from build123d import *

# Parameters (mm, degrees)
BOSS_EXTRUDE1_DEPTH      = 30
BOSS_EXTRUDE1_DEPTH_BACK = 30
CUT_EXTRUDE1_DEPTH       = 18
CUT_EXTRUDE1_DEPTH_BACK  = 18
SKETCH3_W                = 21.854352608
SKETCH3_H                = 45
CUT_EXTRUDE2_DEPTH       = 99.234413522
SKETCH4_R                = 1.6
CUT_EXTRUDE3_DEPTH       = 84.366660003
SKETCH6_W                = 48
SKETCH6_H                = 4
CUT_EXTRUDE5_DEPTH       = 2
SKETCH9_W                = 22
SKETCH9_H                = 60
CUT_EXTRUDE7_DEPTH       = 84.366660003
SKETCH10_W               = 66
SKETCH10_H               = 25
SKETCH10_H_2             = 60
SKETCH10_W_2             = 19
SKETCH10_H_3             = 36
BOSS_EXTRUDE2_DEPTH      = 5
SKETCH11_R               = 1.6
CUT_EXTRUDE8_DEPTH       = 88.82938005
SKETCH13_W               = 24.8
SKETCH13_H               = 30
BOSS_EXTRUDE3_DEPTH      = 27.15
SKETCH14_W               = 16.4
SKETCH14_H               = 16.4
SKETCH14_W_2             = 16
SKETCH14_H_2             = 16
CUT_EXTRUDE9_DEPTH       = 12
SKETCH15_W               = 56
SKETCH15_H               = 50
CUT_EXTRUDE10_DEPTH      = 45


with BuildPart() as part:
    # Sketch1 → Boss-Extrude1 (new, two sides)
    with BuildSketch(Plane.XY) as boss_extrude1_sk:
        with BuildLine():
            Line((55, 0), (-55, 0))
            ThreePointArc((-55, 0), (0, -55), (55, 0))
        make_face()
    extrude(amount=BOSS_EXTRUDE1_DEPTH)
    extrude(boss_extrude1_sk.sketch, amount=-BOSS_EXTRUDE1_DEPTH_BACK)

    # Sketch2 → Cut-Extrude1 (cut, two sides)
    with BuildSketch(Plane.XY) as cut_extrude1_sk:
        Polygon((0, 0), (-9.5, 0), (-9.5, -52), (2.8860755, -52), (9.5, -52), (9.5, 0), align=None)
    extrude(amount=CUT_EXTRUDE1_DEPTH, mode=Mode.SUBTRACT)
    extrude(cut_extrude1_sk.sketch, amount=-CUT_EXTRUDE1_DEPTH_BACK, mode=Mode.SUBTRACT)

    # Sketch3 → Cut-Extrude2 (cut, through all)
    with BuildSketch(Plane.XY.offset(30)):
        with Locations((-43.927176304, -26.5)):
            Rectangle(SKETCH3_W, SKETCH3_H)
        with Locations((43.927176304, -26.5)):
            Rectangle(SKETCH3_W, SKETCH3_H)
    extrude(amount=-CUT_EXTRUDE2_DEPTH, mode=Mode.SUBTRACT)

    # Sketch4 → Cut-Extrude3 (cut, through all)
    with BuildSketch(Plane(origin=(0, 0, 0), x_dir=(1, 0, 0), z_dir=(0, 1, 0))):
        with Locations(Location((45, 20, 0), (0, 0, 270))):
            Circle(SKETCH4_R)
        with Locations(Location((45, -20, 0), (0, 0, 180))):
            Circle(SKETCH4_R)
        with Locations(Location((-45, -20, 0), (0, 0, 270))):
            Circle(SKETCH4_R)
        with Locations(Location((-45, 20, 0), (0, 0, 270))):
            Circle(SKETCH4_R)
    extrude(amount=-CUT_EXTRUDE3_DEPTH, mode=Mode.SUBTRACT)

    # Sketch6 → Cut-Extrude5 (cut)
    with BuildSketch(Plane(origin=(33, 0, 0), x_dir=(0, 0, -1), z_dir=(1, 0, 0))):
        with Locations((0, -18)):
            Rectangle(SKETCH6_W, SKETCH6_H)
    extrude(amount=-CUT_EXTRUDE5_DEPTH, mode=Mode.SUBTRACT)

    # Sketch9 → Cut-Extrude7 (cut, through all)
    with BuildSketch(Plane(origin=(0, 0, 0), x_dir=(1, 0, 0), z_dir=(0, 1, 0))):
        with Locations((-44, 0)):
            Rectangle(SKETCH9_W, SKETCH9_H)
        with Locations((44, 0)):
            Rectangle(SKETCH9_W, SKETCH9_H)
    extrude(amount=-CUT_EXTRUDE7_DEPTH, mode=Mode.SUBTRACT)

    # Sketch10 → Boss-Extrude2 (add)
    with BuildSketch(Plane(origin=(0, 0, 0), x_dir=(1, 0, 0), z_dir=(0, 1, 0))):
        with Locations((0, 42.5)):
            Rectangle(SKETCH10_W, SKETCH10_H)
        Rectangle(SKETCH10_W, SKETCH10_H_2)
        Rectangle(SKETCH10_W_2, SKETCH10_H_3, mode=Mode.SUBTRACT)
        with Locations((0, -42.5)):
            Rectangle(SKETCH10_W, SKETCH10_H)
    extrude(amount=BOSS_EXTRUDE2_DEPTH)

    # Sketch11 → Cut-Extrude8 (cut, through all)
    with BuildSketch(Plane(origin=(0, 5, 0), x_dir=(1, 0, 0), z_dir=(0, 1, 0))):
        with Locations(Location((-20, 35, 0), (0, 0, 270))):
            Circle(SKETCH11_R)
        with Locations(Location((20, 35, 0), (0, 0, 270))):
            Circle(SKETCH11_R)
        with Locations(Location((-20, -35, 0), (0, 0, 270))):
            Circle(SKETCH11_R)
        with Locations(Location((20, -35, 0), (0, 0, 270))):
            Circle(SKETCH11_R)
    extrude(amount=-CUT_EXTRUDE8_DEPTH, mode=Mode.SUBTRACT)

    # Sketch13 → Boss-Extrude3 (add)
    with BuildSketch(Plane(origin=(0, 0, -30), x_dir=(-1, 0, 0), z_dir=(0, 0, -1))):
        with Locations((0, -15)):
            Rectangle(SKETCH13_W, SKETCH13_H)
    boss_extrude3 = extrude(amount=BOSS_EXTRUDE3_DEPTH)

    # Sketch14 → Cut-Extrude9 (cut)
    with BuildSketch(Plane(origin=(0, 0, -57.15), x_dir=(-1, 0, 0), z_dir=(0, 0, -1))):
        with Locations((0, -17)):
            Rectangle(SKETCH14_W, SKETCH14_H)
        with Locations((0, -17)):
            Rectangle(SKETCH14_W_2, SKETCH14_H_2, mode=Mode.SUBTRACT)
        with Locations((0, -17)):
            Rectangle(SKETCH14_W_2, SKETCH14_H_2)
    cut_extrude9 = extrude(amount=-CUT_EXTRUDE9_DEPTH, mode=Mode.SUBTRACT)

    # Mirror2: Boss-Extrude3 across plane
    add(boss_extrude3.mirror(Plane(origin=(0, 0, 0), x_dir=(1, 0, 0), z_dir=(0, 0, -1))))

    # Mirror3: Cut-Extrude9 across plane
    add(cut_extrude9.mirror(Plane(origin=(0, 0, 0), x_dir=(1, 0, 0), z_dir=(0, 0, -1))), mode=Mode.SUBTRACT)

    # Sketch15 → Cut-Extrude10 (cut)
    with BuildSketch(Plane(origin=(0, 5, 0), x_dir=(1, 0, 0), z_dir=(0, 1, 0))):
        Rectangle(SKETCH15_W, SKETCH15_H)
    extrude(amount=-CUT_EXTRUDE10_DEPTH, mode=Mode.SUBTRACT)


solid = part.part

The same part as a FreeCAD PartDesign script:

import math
import FreeCAD as App
import Part
import Sketcher
from FreeCAD import Vector

doc = App.newDocument("Part")
body = doc.addObject("PartDesign::Body", "Body")

sketch1 = doc.addObject("Sketcher::SketchObject", "Sketch")
body.addObject(sketch1)
sketch1.AttachmentSupport = (doc.XY_Plane, [""])
sketch1.MapMode = "FlatFace"
sketch1.addGeometry(Part.LineSegment(Vector(55, 0, 0), Vector(-55, 0, 0)), False)
sketch1.addGeometry(Part.ArcOfCircle(Part.Circle(Vector(0, 0, 0), Vector(0, 0, 1), 55), math.radians(180), math.radians(360)), False)
sketch1.addConstraint(Sketcher.Constraint("Coincident", 0, 1, 1, 2))
sketch1.addConstraint(Sketcher.Constraint("Coincident", 1, 1, 0, 2))
sketch1.addConstraint(Sketcher.Constraint("Horizontal", 0))
sketch1.addConstraint(Sketcher.Constraint("Coincident", 1, 3, -1, 1))
sketch1.addConstraint(Sketcher.Constraint("PointOnObject", 0, 1, -1))
sketch1.addConstraint(Sketcher.Constraint("Radius", 1, 55.0))
pad1 = doc.addObject("PartDesign::Pad", "Pad")
body.addObject(pad1)
pad1.Profile = sketch1
pad1.Type = "TwoLengths"
pad1.Length = 30
pad1.Length2 = 30

sketch2 = doc.addObject("Sketcher::SketchObject", "Sketch001")
body.addObject(sketch2)
sketch2.AttachmentSupport = (doc.XY_Plane, [""])
sketch2.MapMode = "FlatFace"
sketch2.addGeometry(Part.LineSegment(Vector(-10, 0, 0), Vector(-10, -52, 0)), False)
sketch2.addGeometry(Part.LineSegment(Vector(-10, -52, 0), Vector(10, -52, 0)), False)
sketch2.addGeometry(Part.LineSegment(Vector(10, -52, 0), Vector(10, 0, 0)), False)
sketch2.addGeometry(Part.LineSegment(Vector(10, 0, 0), Vector(-10, 0, 0)), False)
sketch2.addConstraint(Sketcher.Constraint("Coincident", 0, 2, 1, 1))
sketch2.addConstraint(Sketcher.Constraint("Coincident", 1, 2, 2, 1))
sketch2.addConstraint(Sketcher.Constraint("Coincident", 2, 2, 3, 1))
sketch2.addConstraint(Sketcher.Constraint("Coincident", 3, 2, 0, 1))
sketch2.addConstraint(Sketcher.Constraint("Vertical", 0))
sketch2.addConstraint(Sketcher.Constraint("Horizontal", 1))
sketch2.addConstraint(Sketcher.Constraint("Vertical", 2))
sketch2.addConstraint(Sketcher.Constraint("Horizontal", 3))
sketch2.addConstraint(Sketcher.Constraint("Symmetric", 2, 2, 3, 2, -1, 1))
sketch2.addConstraint(Sketcher.Constraint("DistanceX", 1, 1, 1, 2, 19.0))
sketch2.addConstraint(Sketcher.Constraint("DistanceY", 0, 2, 0, 1, 52.0))
pocket1 = doc.addObject("PartDesign::Pocket", "Pocket")
body.addObject(pocket1)
pocket1.Profile = sketch2
pocket1.Type = "TwoLengths"
pocket1.Length = 18
pocket1.Length2 = 18
pocket1.Reversed = True

sketch3 = doc.addObject("Sketcher::SketchObject", "Sketch002")
body.addObject(sketch3)
sketch3.AttachmentSupport = (doc.XY_Plane, [""])
sketch3.MapMode = "FlatFace"
sketch3.AttachmentOffset = App.Placement(Vector(0, 0, 30), App.Rotation())
sketch3.addGeometry(Part.LineSegment(Vector(-55, -4, 0), Vector(-55, -49, 0)), False)
sketch3.addGeometry(Part.LineSegment(Vector(-55, -49, 0), Vector(-33, -49, 0)), False)
sketch3.addGeometry(Part.LineSegment(Vector(-33, -49, 0), Vector(-33, -4, 0)), False)
sketch3.addGeometry(Part.LineSegment(Vector(-33, -4, 0), Vector(-55, -4, 0)), False)
sketch3.addGeometry(Part.LineSegment(Vector(33, -4, 0), Vector(33, -49, 0)), False)
sketch3.addGeometry(Part.LineSegment(Vector(33, -49, 0), Vector(55, -49, 0)), False)
sketch3.addGeometry(Part.LineSegment(Vector(55, -49, 0), Vector(55, -4, 0)), False)
sketch3.addGeometry(Part.LineSegment(Vector(55, -4, 0), Vector(33, -4, 0)), False)
sketch3.addConstraint(Sketcher.Constraint("Coincident", 0, 2, 1, 1))
sketch3.addConstraint(Sketcher.Constraint("Coincident", 1, 2, 2, 1))
sketch3.addConstraint(Sketcher.Constraint("Coincident", 2, 2, 3, 1))
sketch3.addConstraint(Sketcher.Constraint("Coincident", 3, 2, 0, 1))
sketch3.addConstraint(Sketcher.Constraint("Coincident", 4, 2, 5, 1))
sketch3.addConstraint(Sketcher.Constraint("Coincident", 5, 2, 6, 1))
sketch3.addConstraint(Sketcher.Constraint("Coincident", 6, 2, 7, 1))
sketch3.addConstraint(Sketcher.Constraint("Coincident", 7, 2, 4, 1))
sketch3.addConstraint(Sketcher.Constraint("Vertical", 0))
sketch3.addConstraint(Sketcher.Constraint("Horizontal", 1))
sketch3.addConstraint(Sketcher.Constraint("Vertical", 2))
sketch3.addConstraint(Sketcher.Constraint("Horizontal", 3))
sketch3.addConstraint(Sketcher.Constraint("Vertical", 4))
sketch3.addConstraint(Sketcher.Constraint("Horizontal", 5))
sketch3.addConstraint(Sketcher.Constraint("Vertical", 6))
sketch3.addConstraint(Sketcher.Constraint("Horizontal", 7))
sketch3.addConstraint(Sketcher.Constraint("Symmetric", 1, 2, 4, 2, -2))
sketch3.addConstraint(Sketcher.Constraint("Symmetric", 3, 2, 6, 2, -2))
sketch3.addConstraint(Sketcher.Constraint("DistanceY", 0, 2, 0, 1, 45.0))
sketch3.addConstraint(Sketcher.Constraint("DistanceY", 0, 2, -1, 1, 49.0))
sketch3.addConstraint(Sketcher.Constraint("DistanceX", 1, 2, -1, 1, 33.0))
sketch3.addConstraint(Sketcher.Constraint("DistanceX", 1, 1, 1, 2, 21.854353))
pocket2 = doc.addObject("PartDesign::Pocket", "Pocket001")
body.addObject(pocket2)
pocket2.Profile = sketch3
pocket2.Type = "ThroughAll"

sketch4 = doc.addObject("Sketcher::SketchObject", "Sketch003")
body.addObject(sketch4)
sketch4.AttachmentSupport = (doc.XZ_Plane, [""])
sketch4.MapMode = "FlatFace"
sketch4.addGeometry(Part.Circle(Vector(45, -20, 0), Vector(0, 0, 1), 1.6), False)
sketch4.addGeometry(Part.Circle(Vector(45, 20, 0), Vector(0, 0, 1), 1.6), False)
sketch4.addGeometry(Part.Circle(Vector(-45, 20, 0), Vector(0, 0, 1), 1.6), False)
sketch4.addGeometry(Part.Circle(Vector(-45, -20, 0), Vector(0, 0, 1), 1.6), False)
sketch4.addConstraint(Sketcher.Constraint("Equal", 0, 1))
sketch4.addConstraint(Sketcher.Constraint("Equal", 1, 2))
sketch4.addConstraint(Sketcher.Constraint("Equal", 2, 3))
sketch4.addConstraint(Sketcher.Constraint("Symmetric", 0, 3, 2, 3, -1, 1))
sketch4.addConstraint(Sketcher.Constraint("Symmetric", 1, 3, 3, 3, -1, 1))
sketch4.addConstraint(Sketcher.Constraint("Symmetric", 1, 3, 2, 3, -2))
sketch4.addConstraint(Sketcher.Constraint("Diameter", 0, 3.2))
sketch4.addConstraint(Sketcher.Constraint("DistanceX", -1, 1, 0, 3, 45.0))
sketch4.addConstraint(Sketcher.Constraint("DistanceY", 0, 3, -1, 1, 20.0))
pocket3 = doc.addObject("PartDesign::Pocket", "Pocket002")
body.addObject(pocket3)
pocket3.Profile = sketch4
pocket3.Type = "ThroughAll"
pocket3.Reversed = True

sketch5 = doc.addObject("Sketcher::SketchObject", "Sketch004")
body.addObject(sketch5)
sketch5.AttachmentSupport = (doc.YZ_Plane, [""])
sketch5.MapMode = "FlatFace"
sketch5.AttachmentOffset = App.Placement(Vector(0, 0, 33), App.Rotation())
sketch5.addGeometry(Part.LineSegment(Vector(-16, 24, 0), Vector(-20, 24, 0)), False)
sketch5.addGeometry(Part.LineSegment(Vector(-20, 24, 0), Vector(-20, -24, 0)), False)
sketch5.addGeometry(Part.LineSegment(Vector(-20, -24, 0), Vector(-16, -24, 0)), False)
sketch5.addGeometry(Part.LineSegment(Vector(-16, -24, 0), Vector(-16, 24, 0)), False)
sketch5.addConstraint(Sketcher.Constraint("Coincident", 0, 2, 1, 1))
sketch5.addConstraint(Sketcher.Constraint("Coincident", 1, 2, 2, 1))
sketch5.addConstraint(Sketcher.Constraint("Coincident", 2, 2, 3, 1))
sketch5.addConstraint(Sketcher.Constraint("Coincident", 3, 2, 0, 1))
sketch5.addConstraint(Sketcher.Constraint("Horizontal", 0))
sketch5.addConstraint(Sketcher.Constraint("Vertical", 1))
sketch5.addConstraint(Sketcher.Constraint("Horizontal", 2))
sketch5.addConstraint(Sketcher.Constraint("Vertical", 3))
sketch5.addConstraint(Sketcher.Constraint("DistanceX", 0, 2, 0, 1, 4.0))
sketch5.addConstraint(Sketcher.Constraint("DistanceY", 1, 2, 1, 1, 48.0))
sketch5.addConstraint(Sketcher.Constraint("DistanceX", 0, 2, -1, 1, 20.0))
sketch5.addConstraint(Sketcher.Constraint("DistanceY", -1, 1, 0, 2, 24.0))
pocket4 = doc.addObject("PartDesign::Pocket", "Pocket003")
body.addObject(pocket4)
pocket4.Profile = sketch5
pocket4.Length = 2

sketch6 = doc.addObject("Sketcher::SketchObject", "Sketch005")
body.addObject(sketch6)
sketch6.AttachmentSupport = (doc.XZ_Plane, [""])
sketch6.MapMode = "FlatFace"
sketch6.addGeometry(Part.LineSegment(Vector(-55, -30, 0), Vector(-55, 30, 0)), False)
sketch6.addGeometry(Part.LineSegment(Vector(-55, 30, 0), Vector(-33, 30, 0)), False)
sketch6.addGeometry(Part.LineSegment(Vector(-33, 30, 0), Vector(-33, -30, 0)), False)
sketch6.addGeometry(Part.LineSegment(Vector(-33, -30, 0), Vector(-55, -30, 0)), False)
sketch6.addGeometry(Part.LineSegment(Vector(33, -30, 0), Vector(33, 30, 0)), False)
sketch6.addGeometry(Part.LineSegment(Vector(33, 30, 0), Vector(55, 30, 0)), False)
sketch6.addGeometry(Part.LineSegment(Vector(55, 30, 0), Vector(55, -30, 0)), False)
sketch6.addGeometry(Part.LineSegment(Vector(55, -30, 0), Vector(33, -30, 0)), False)
sketch6.addConstraint(Sketcher.Constraint("Coincident", 0, 2, 1, 1))
sketch6.addConstraint(Sketcher.Constraint("Coincident", 1, 2, 2, 1))
sketch6.addConstraint(Sketcher.Constraint("Coincident", 2, 2, 3, 1))
sketch6.addConstraint(Sketcher.Constraint("Coincident", 3, 2, 0, 1))
sketch6.addConstraint(Sketcher.Constraint("Coincident", 4, 2, 5, 1))
sketch6.addConstraint(Sketcher.Constraint("Coincident", 5, 2, 6, 1))
sketch6.addConstraint(Sketcher.Constraint("Coincident", 6, 2, 7, 1))
sketch6.addConstraint(Sketcher.Constraint("Coincident", 7, 2, 4, 1))
sketch6.addConstraint(Sketcher.Constraint("Vertical", 0))
sketch6.addConstraint(Sketcher.Constraint("Horizontal", 1))
sketch6.addConstraint(Sketcher.Constraint("Vertical", 2))
sketch6.addConstraint(Sketcher.Constraint("Horizontal", 3))
sketch6.addConstraint(Sketcher.Constraint("Vertical", 4))
sketch6.addConstraint(Sketcher.Constraint("Horizontal", 5))
sketch6.addConstraint(Sketcher.Constraint("Vertical", 6))
sketch6.addConstraint(Sketcher.Constraint("Horizontal", 7))
sketch6.addConstraint(Sketcher.Constraint("Symmetric", 2, 2, 4, 2, -1, 1))
sketch6.addConstraint(Sketcher.Constraint("Symmetric", 0, 2, 6, 2, -1, 1))
sketch6.addConstraint(Sketcher.Constraint("Horizontal", 1, 2, 4, 2))
sketch6.addConstraint(Sketcher.Constraint("DistanceX", 1, 1, 1, 2, 22.0))
sketch6.addConstraint(Sketcher.Constraint("DistanceY", 0, 1, 0, 2, 60.0))
sketch6.addConstraint(Sketcher.Constraint("DistanceX", 0, 2, -1, 1, 55.0))
pocket5 = doc.addObject("PartDesign::Pocket", "Pocket004")
body.addObject(pocket5)
pocket5.Profile = sketch6
pocket5.Type = "ThroughAll"
pocket5.Reversed = True

sketch7 = doc.addObject("Sketcher::SketchObject", "Sketch006")
body.addObject(sketch7)
sketch7.AttachmentSupport = (doc.XZ_Plane, [""])
sketch7.MapMode = "FlatFace"
sketch7.addGeometry(Part.LineSegment(Vector(-33, -55, 0), Vector(-33, 55, 0)), False)
sketch7.addGeometry(Part.LineSegment(Vector(-33, 55, 0), Vector(33, 55, 0)), False)
sketch7.addGeometry(Part.LineSegment(Vector(33, 55, 0), Vector(33, -55, 0)), False)
sketch7.addGeometry(Part.LineSegment(Vector(33, -55, 0), Vector(-33, -55, 0)), False)
sketch7.addGeometry(Part.LineSegment(Vector(10, 18, 0), Vector(-10, 18, 0)), False)
sketch7.addGeometry(Part.LineSegment(Vector(-10, 18, 0), Vector(-10, -18, 0)), False)
sketch7.addGeometry(Part.LineSegment(Vector(-10, -18, 0), Vector(10, -18, 0)), False)
sketch7.addGeometry(Part.LineSegment(Vector(10, -18, 0), Vector(10, 18, 0)), False)
sketch7.addConstraint(Sketcher.Constraint("Coincident", 0, 2, 1, 1))
sketch7.addConstraint(Sketcher.Constraint("Coincident", 1, 2, 2, 1))
sketch7.addConstraint(Sketcher.Constraint("Coincident", 2, 2, 3, 1))
sketch7.addConstraint(Sketcher.Constraint("Coincident", 3, 2, 0, 1))
sketch7.addConstraint(Sketcher.Constraint("Coincident", 4, 2, 5, 1))
sketch7.addConstraint(Sketcher.Constraint("Coincident", 5, 2, 6, 1))
sketch7.addConstraint(Sketcher.Constraint("Coincident", 6, 2, 7, 1))
sketch7.addConstraint(Sketcher.Constraint("Coincident", 7, 2, 4, 1))
sketch7.addConstraint(Sketcher.Constraint("Vertical", 0))
sketch7.addConstraint(Sketcher.Constraint("Horizontal", 1))
sketch7.addConstraint(Sketcher.Constraint("Vertical", 2))
sketch7.addConstraint(Sketcher.Constraint("Horizontal", 3))
sketch7.addConstraint(Sketcher.Constraint("Horizontal", 4))
sketch7.addConstraint(Sketcher.Constraint("Vertical", 5))
sketch7.addConstraint(Sketcher.Constraint("Horizontal", 6))
sketch7.addConstraint(Sketcher.Constraint("Vertical", 7))
sketch7.addConstraint(Sketcher.Constraint("Symmetric", 0, 2, 2, 2, -1, 1))
sketch7.addConstraint(Sketcher.Constraint("Symmetric", 4, 2, 6, 2, -1, 1))
sketch7.addConstraint(Sketcher.Constraint("DistanceX", 1, 1, 1, 2, 66.0))
sketch7.addConstraint(Sketcher.Constraint("DistanceX", 4, 2, 4, 1, 19.0))
sketch7.addConstraint(Sketcher.Constraint("DistanceY", 0, 1, 0, 2, 110.0))
sketch7.addConstraint(Sketcher.Constraint("DistanceY", 5, 2, 5, 1, 36.0))
pad2 = doc.addObject("PartDesign::Pad", "Pad001")
body.addObject(pad2)
pad2.Profile = sketch7
pad2.Length = 5
pad2.Reversed = True

sketch8 = doc.addObject("Sketcher::SketchObject", "Sketch007")
body.addObject(sketch8)
sketch8.AttachmentSupport = (doc.XZ_Plane, [""])
sketch8.MapMode = "FlatFace"
sketch8.AttachmentOffset = App.Placement(Vector(0, 0, -5), App.Rotation())
sketch8.addGeometry(Part.Circle(Vector(-20, -35, 0), Vector(0, 0, 1), 1.6), False)
sketch8.addGeometry(Part.Circle(Vector(20, -35, 0), Vector(0, 0, 1), 1.6), False)
sketch8.addGeometry(Part.Circle(Vector(-20, 35, 0), Vector(0, 0, 1), 1.6), False)
sketch8.addGeometry(Part.Circle(Vector(20, 35, 0), Vector(0, 0, 1), 1.6), False)
sketch8.addConstraint(Sketcher.Constraint("Equal", 0, 1))
sketch8.addConstraint(Sketcher.Constraint("Equal", 1, 2))
sketch8.addConstraint(Sketcher.Constraint("Equal", 2, 3))
sketch8.addConstraint(Sketcher.Constraint("Symmetric", 1, 3, 2, 3, -1, 1))
sketch8.addConstraint(Sketcher.Constraint("Symmetric", 0, 3, 3, 3, -1, 1))
sketch8.addConstraint(Sketcher.Constraint("Symmetric", 0, 3, 1, 3, -2))
sketch8.addConstraint(Sketcher.Constraint("Diameter", 0, 3.2))
sketch8.addConstraint(Sketcher.Constraint("DistanceX", 0, 3, -1, 1, 20.0))
sketch8.addConstraint(Sketcher.Constraint("DistanceY", 0, 3, -1, 1, 35.0))
pocket6 = doc.addObject("PartDesign::Pocket", "Pocket005")
body.addObject(pocket6)
pocket6.Profile = sketch8
pocket6.Type = "ThroughAll"
pocket6.Reversed = True

sketch9 = doc.addObject("Sketcher::SketchObject", "Sketch008")
body.addObject(sketch9)
sketch9.AttachmentSupport = (doc.XY_Plane, [""])
sketch9.MapMode = "FlatFace"
sketch9.AttachmentOffset = App.Placement(Vector(0, 0, -30), App.Rotation())
sketch9.addGeometry(Part.LineSegment(Vector(12, 0, 0), Vector(12, -30, 0)), False)
sketch9.addGeometry(Part.LineSegment(Vector(12, -30, 0), Vector(-12, -30, 0)), False)
sketch9.addGeometry(Part.LineSegment(Vector(-12, -30, 0), Vector(-12, 0, 0)), False)
sketch9.addGeometry(Part.LineSegment(Vector(-12, 0, 0), Vector(12, 0, 0)), False)
sketch9.addConstraint(Sketcher.Constraint("Coincident", 0, 2, 1, 1))
sketch9.addConstraint(Sketcher.Constraint("Coincident", 1, 2, 2, 1))
sketch9.addConstraint(Sketcher.Constraint("Coincident", 2, 2, 3, 1))
sketch9.addConstraint(Sketcher.Constraint("Coincident", 3, 2, 0, 1))
sketch9.addConstraint(Sketcher.Constraint("Vertical", 0))
sketch9.addConstraint(Sketcher.Constraint("Horizontal", 1))
sketch9.addConstraint(Sketcher.Constraint("Vertical", 2))
sketch9.addConstraint(Sketcher.Constraint("Horizontal", 3))
sketch9.addConstraint(Sketcher.Constraint("Symmetric", 2, 2, 3, 2, -1, 1))
sketch9.addConstraint(Sketcher.Constraint("DistanceY", 0, 2, 0, 1, 30.0))
sketch9.addConstraint(Sketcher.Constraint("DistanceX", 1, 2, 1, 1, 24.8))
pad3 = doc.addObject("PartDesign::Pad", "Pad002")
body.addObject(pad3)
pad3.Profile = sketch9
pad3.Length = 27.15
pad3.Reversed = True

sketch10 = doc.addObject("Sketcher::SketchObject", "Sketch009")
body.addObject(sketch10)
sketch10.AttachmentSupport = (doc.XY_Plane, [""])
sketch10.MapMode = "FlatFace"
sketch10.AttachmentOffset = App.Placement(Vector(0, 0, -57.15), App.Rotation())
sketch10.addGeometry(Part.LineSegment(Vector(8, -9, 0), Vector(8, -25, 0)), False)
sketch10.addGeometry(Part.LineSegment(Vector(8, -25, 0), Vector(-8, -25, 0)), False)
sketch10.addGeometry(Part.LineSegment(Vector(-8, -25, 0), Vector(-8, -9, 0)), False)
sketch10.addGeometry(Part.LineSegment(Vector(-8, -9, 0), Vector(8, -9, 0)), False)
sketch10.addConstraint(Sketcher.Constraint("Coincident", 0, 2, 1, 1))
sketch10.addConstraint(Sketcher.Constraint("Coincident", 1, 2, 2, 1))
sketch10.addConstraint(Sketcher.Constraint("Coincident", 2, 2, 3, 1))
sketch10.addConstraint(Sketcher.Constraint("Coincident", 3, 2, 0, 1))
sketch10.addConstraint(Sketcher.Constraint("Vertical", 0))
sketch10.addConstraint(Sketcher.Constraint("Horizontal", 1))
sketch10.addConstraint(Sketcher.Constraint("Vertical", 2))
sketch10.addConstraint(Sketcher.Constraint("Horizontal", 3))
sketch10.addConstraint(Sketcher.Constraint("Equal", 3, 0))
sketch10.addConstraint(Sketcher.Constraint("DistanceX", 1, 2, 1, 1, 16.4))
sketch10.addConstraint(Sketcher.Constraint("DistanceX", -1, 1, 0, 2, 8.2))
sketch10.addConstraint(Sketcher.Constraint("DistanceY", 0, 2, -1, 1, 25.2))
pocket7 = doc.addObject("PartDesign::Pocket", "Pocket006")
body.addObject(pocket7)
pocket7.Profile = sketch10
pocket7.Length = 12
pocket7.Reversed = True
doc.recompute()

mirrored = doc.addObject("PartDesign::Mirrored", "Mirrored")
body.addObject(mirrored)
mirrored.Originals = [pad3]
mirrored.MirrorPlane = (doc.XY_Plane, [""])
body.Tip = mirrored
doc.recompute()

mirrored2 = doc.addObject("PartDesign::Mirrored", "Mirrored001")
body.addObject(mirrored2)
mirrored2.Originals = [pocket7]
mirrored2.MirrorPlane = (doc.XY_Plane, [""])
body.Tip = mirrored2

sketch11 = doc.addObject("Sketcher::SketchObject", "Sketch010")
body.addObject(sketch11)
sketch11.AttachmentSupport = (doc.XZ_Plane, [""])
sketch11.MapMode = "FlatFace"
sketch11.AttachmentOffset = App.Placement(Vector(0, 0, -5), App.Rotation())
sketch11.addGeometry(Part.LineSegment(Vector(-28, -25, 0), Vector(-28, 25, 0)), False)
sketch11.addGeometry(Part.LineSegment(Vector(-28, 25, 0), Vector(28, 25, 0)), False)
sketch11.addGeometry(Part.LineSegment(Vector(28, 25, 0), Vector(28, -25, 0)), False)
sketch11.addGeometry(Part.LineSegment(Vector(28, -25, 0), Vector(-28, -25, 0)), False)
sketch11.addConstraint(Sketcher.Constraint("Coincident", 0, 2, 1, 1))
sketch11.addConstraint(Sketcher.Constraint("Coincident", 1, 2, 2, 1))
sketch11.addConstraint(Sketcher.Constraint("Coincident", 2, 2, 3, 1))
sketch11.addConstraint(Sketcher.Constraint("Coincident", 3, 2, 0, 1))
sketch11.addConstraint(Sketcher.Constraint("Vertical", 0))
sketch11.addConstraint(Sketcher.Constraint("Horizontal", 1))
sketch11.addConstraint(Sketcher.Constraint("Vertical", 2))
sketch11.addConstraint(Sketcher.Constraint("Horizontal", 3))
sketch11.addConstraint(Sketcher.Constraint("Symmetric", 0, 2, 2, 2, -1, 1))
sketch11.addConstraint(Sketcher.Constraint("DistanceX", 1, 1, 1, 2, 56.0))
sketch11.addConstraint(Sketcher.Constraint("DistanceY", 0, 1, 0, 2, 50.0))
pocket8 = doc.addObject("PartDesign::Pocket", "Pocket007")
body.addObject(pocket8)
pocket8.Profile = sketch11
pocket8.Length = 45
pocket8.Reversed = True

doc.recompute()
